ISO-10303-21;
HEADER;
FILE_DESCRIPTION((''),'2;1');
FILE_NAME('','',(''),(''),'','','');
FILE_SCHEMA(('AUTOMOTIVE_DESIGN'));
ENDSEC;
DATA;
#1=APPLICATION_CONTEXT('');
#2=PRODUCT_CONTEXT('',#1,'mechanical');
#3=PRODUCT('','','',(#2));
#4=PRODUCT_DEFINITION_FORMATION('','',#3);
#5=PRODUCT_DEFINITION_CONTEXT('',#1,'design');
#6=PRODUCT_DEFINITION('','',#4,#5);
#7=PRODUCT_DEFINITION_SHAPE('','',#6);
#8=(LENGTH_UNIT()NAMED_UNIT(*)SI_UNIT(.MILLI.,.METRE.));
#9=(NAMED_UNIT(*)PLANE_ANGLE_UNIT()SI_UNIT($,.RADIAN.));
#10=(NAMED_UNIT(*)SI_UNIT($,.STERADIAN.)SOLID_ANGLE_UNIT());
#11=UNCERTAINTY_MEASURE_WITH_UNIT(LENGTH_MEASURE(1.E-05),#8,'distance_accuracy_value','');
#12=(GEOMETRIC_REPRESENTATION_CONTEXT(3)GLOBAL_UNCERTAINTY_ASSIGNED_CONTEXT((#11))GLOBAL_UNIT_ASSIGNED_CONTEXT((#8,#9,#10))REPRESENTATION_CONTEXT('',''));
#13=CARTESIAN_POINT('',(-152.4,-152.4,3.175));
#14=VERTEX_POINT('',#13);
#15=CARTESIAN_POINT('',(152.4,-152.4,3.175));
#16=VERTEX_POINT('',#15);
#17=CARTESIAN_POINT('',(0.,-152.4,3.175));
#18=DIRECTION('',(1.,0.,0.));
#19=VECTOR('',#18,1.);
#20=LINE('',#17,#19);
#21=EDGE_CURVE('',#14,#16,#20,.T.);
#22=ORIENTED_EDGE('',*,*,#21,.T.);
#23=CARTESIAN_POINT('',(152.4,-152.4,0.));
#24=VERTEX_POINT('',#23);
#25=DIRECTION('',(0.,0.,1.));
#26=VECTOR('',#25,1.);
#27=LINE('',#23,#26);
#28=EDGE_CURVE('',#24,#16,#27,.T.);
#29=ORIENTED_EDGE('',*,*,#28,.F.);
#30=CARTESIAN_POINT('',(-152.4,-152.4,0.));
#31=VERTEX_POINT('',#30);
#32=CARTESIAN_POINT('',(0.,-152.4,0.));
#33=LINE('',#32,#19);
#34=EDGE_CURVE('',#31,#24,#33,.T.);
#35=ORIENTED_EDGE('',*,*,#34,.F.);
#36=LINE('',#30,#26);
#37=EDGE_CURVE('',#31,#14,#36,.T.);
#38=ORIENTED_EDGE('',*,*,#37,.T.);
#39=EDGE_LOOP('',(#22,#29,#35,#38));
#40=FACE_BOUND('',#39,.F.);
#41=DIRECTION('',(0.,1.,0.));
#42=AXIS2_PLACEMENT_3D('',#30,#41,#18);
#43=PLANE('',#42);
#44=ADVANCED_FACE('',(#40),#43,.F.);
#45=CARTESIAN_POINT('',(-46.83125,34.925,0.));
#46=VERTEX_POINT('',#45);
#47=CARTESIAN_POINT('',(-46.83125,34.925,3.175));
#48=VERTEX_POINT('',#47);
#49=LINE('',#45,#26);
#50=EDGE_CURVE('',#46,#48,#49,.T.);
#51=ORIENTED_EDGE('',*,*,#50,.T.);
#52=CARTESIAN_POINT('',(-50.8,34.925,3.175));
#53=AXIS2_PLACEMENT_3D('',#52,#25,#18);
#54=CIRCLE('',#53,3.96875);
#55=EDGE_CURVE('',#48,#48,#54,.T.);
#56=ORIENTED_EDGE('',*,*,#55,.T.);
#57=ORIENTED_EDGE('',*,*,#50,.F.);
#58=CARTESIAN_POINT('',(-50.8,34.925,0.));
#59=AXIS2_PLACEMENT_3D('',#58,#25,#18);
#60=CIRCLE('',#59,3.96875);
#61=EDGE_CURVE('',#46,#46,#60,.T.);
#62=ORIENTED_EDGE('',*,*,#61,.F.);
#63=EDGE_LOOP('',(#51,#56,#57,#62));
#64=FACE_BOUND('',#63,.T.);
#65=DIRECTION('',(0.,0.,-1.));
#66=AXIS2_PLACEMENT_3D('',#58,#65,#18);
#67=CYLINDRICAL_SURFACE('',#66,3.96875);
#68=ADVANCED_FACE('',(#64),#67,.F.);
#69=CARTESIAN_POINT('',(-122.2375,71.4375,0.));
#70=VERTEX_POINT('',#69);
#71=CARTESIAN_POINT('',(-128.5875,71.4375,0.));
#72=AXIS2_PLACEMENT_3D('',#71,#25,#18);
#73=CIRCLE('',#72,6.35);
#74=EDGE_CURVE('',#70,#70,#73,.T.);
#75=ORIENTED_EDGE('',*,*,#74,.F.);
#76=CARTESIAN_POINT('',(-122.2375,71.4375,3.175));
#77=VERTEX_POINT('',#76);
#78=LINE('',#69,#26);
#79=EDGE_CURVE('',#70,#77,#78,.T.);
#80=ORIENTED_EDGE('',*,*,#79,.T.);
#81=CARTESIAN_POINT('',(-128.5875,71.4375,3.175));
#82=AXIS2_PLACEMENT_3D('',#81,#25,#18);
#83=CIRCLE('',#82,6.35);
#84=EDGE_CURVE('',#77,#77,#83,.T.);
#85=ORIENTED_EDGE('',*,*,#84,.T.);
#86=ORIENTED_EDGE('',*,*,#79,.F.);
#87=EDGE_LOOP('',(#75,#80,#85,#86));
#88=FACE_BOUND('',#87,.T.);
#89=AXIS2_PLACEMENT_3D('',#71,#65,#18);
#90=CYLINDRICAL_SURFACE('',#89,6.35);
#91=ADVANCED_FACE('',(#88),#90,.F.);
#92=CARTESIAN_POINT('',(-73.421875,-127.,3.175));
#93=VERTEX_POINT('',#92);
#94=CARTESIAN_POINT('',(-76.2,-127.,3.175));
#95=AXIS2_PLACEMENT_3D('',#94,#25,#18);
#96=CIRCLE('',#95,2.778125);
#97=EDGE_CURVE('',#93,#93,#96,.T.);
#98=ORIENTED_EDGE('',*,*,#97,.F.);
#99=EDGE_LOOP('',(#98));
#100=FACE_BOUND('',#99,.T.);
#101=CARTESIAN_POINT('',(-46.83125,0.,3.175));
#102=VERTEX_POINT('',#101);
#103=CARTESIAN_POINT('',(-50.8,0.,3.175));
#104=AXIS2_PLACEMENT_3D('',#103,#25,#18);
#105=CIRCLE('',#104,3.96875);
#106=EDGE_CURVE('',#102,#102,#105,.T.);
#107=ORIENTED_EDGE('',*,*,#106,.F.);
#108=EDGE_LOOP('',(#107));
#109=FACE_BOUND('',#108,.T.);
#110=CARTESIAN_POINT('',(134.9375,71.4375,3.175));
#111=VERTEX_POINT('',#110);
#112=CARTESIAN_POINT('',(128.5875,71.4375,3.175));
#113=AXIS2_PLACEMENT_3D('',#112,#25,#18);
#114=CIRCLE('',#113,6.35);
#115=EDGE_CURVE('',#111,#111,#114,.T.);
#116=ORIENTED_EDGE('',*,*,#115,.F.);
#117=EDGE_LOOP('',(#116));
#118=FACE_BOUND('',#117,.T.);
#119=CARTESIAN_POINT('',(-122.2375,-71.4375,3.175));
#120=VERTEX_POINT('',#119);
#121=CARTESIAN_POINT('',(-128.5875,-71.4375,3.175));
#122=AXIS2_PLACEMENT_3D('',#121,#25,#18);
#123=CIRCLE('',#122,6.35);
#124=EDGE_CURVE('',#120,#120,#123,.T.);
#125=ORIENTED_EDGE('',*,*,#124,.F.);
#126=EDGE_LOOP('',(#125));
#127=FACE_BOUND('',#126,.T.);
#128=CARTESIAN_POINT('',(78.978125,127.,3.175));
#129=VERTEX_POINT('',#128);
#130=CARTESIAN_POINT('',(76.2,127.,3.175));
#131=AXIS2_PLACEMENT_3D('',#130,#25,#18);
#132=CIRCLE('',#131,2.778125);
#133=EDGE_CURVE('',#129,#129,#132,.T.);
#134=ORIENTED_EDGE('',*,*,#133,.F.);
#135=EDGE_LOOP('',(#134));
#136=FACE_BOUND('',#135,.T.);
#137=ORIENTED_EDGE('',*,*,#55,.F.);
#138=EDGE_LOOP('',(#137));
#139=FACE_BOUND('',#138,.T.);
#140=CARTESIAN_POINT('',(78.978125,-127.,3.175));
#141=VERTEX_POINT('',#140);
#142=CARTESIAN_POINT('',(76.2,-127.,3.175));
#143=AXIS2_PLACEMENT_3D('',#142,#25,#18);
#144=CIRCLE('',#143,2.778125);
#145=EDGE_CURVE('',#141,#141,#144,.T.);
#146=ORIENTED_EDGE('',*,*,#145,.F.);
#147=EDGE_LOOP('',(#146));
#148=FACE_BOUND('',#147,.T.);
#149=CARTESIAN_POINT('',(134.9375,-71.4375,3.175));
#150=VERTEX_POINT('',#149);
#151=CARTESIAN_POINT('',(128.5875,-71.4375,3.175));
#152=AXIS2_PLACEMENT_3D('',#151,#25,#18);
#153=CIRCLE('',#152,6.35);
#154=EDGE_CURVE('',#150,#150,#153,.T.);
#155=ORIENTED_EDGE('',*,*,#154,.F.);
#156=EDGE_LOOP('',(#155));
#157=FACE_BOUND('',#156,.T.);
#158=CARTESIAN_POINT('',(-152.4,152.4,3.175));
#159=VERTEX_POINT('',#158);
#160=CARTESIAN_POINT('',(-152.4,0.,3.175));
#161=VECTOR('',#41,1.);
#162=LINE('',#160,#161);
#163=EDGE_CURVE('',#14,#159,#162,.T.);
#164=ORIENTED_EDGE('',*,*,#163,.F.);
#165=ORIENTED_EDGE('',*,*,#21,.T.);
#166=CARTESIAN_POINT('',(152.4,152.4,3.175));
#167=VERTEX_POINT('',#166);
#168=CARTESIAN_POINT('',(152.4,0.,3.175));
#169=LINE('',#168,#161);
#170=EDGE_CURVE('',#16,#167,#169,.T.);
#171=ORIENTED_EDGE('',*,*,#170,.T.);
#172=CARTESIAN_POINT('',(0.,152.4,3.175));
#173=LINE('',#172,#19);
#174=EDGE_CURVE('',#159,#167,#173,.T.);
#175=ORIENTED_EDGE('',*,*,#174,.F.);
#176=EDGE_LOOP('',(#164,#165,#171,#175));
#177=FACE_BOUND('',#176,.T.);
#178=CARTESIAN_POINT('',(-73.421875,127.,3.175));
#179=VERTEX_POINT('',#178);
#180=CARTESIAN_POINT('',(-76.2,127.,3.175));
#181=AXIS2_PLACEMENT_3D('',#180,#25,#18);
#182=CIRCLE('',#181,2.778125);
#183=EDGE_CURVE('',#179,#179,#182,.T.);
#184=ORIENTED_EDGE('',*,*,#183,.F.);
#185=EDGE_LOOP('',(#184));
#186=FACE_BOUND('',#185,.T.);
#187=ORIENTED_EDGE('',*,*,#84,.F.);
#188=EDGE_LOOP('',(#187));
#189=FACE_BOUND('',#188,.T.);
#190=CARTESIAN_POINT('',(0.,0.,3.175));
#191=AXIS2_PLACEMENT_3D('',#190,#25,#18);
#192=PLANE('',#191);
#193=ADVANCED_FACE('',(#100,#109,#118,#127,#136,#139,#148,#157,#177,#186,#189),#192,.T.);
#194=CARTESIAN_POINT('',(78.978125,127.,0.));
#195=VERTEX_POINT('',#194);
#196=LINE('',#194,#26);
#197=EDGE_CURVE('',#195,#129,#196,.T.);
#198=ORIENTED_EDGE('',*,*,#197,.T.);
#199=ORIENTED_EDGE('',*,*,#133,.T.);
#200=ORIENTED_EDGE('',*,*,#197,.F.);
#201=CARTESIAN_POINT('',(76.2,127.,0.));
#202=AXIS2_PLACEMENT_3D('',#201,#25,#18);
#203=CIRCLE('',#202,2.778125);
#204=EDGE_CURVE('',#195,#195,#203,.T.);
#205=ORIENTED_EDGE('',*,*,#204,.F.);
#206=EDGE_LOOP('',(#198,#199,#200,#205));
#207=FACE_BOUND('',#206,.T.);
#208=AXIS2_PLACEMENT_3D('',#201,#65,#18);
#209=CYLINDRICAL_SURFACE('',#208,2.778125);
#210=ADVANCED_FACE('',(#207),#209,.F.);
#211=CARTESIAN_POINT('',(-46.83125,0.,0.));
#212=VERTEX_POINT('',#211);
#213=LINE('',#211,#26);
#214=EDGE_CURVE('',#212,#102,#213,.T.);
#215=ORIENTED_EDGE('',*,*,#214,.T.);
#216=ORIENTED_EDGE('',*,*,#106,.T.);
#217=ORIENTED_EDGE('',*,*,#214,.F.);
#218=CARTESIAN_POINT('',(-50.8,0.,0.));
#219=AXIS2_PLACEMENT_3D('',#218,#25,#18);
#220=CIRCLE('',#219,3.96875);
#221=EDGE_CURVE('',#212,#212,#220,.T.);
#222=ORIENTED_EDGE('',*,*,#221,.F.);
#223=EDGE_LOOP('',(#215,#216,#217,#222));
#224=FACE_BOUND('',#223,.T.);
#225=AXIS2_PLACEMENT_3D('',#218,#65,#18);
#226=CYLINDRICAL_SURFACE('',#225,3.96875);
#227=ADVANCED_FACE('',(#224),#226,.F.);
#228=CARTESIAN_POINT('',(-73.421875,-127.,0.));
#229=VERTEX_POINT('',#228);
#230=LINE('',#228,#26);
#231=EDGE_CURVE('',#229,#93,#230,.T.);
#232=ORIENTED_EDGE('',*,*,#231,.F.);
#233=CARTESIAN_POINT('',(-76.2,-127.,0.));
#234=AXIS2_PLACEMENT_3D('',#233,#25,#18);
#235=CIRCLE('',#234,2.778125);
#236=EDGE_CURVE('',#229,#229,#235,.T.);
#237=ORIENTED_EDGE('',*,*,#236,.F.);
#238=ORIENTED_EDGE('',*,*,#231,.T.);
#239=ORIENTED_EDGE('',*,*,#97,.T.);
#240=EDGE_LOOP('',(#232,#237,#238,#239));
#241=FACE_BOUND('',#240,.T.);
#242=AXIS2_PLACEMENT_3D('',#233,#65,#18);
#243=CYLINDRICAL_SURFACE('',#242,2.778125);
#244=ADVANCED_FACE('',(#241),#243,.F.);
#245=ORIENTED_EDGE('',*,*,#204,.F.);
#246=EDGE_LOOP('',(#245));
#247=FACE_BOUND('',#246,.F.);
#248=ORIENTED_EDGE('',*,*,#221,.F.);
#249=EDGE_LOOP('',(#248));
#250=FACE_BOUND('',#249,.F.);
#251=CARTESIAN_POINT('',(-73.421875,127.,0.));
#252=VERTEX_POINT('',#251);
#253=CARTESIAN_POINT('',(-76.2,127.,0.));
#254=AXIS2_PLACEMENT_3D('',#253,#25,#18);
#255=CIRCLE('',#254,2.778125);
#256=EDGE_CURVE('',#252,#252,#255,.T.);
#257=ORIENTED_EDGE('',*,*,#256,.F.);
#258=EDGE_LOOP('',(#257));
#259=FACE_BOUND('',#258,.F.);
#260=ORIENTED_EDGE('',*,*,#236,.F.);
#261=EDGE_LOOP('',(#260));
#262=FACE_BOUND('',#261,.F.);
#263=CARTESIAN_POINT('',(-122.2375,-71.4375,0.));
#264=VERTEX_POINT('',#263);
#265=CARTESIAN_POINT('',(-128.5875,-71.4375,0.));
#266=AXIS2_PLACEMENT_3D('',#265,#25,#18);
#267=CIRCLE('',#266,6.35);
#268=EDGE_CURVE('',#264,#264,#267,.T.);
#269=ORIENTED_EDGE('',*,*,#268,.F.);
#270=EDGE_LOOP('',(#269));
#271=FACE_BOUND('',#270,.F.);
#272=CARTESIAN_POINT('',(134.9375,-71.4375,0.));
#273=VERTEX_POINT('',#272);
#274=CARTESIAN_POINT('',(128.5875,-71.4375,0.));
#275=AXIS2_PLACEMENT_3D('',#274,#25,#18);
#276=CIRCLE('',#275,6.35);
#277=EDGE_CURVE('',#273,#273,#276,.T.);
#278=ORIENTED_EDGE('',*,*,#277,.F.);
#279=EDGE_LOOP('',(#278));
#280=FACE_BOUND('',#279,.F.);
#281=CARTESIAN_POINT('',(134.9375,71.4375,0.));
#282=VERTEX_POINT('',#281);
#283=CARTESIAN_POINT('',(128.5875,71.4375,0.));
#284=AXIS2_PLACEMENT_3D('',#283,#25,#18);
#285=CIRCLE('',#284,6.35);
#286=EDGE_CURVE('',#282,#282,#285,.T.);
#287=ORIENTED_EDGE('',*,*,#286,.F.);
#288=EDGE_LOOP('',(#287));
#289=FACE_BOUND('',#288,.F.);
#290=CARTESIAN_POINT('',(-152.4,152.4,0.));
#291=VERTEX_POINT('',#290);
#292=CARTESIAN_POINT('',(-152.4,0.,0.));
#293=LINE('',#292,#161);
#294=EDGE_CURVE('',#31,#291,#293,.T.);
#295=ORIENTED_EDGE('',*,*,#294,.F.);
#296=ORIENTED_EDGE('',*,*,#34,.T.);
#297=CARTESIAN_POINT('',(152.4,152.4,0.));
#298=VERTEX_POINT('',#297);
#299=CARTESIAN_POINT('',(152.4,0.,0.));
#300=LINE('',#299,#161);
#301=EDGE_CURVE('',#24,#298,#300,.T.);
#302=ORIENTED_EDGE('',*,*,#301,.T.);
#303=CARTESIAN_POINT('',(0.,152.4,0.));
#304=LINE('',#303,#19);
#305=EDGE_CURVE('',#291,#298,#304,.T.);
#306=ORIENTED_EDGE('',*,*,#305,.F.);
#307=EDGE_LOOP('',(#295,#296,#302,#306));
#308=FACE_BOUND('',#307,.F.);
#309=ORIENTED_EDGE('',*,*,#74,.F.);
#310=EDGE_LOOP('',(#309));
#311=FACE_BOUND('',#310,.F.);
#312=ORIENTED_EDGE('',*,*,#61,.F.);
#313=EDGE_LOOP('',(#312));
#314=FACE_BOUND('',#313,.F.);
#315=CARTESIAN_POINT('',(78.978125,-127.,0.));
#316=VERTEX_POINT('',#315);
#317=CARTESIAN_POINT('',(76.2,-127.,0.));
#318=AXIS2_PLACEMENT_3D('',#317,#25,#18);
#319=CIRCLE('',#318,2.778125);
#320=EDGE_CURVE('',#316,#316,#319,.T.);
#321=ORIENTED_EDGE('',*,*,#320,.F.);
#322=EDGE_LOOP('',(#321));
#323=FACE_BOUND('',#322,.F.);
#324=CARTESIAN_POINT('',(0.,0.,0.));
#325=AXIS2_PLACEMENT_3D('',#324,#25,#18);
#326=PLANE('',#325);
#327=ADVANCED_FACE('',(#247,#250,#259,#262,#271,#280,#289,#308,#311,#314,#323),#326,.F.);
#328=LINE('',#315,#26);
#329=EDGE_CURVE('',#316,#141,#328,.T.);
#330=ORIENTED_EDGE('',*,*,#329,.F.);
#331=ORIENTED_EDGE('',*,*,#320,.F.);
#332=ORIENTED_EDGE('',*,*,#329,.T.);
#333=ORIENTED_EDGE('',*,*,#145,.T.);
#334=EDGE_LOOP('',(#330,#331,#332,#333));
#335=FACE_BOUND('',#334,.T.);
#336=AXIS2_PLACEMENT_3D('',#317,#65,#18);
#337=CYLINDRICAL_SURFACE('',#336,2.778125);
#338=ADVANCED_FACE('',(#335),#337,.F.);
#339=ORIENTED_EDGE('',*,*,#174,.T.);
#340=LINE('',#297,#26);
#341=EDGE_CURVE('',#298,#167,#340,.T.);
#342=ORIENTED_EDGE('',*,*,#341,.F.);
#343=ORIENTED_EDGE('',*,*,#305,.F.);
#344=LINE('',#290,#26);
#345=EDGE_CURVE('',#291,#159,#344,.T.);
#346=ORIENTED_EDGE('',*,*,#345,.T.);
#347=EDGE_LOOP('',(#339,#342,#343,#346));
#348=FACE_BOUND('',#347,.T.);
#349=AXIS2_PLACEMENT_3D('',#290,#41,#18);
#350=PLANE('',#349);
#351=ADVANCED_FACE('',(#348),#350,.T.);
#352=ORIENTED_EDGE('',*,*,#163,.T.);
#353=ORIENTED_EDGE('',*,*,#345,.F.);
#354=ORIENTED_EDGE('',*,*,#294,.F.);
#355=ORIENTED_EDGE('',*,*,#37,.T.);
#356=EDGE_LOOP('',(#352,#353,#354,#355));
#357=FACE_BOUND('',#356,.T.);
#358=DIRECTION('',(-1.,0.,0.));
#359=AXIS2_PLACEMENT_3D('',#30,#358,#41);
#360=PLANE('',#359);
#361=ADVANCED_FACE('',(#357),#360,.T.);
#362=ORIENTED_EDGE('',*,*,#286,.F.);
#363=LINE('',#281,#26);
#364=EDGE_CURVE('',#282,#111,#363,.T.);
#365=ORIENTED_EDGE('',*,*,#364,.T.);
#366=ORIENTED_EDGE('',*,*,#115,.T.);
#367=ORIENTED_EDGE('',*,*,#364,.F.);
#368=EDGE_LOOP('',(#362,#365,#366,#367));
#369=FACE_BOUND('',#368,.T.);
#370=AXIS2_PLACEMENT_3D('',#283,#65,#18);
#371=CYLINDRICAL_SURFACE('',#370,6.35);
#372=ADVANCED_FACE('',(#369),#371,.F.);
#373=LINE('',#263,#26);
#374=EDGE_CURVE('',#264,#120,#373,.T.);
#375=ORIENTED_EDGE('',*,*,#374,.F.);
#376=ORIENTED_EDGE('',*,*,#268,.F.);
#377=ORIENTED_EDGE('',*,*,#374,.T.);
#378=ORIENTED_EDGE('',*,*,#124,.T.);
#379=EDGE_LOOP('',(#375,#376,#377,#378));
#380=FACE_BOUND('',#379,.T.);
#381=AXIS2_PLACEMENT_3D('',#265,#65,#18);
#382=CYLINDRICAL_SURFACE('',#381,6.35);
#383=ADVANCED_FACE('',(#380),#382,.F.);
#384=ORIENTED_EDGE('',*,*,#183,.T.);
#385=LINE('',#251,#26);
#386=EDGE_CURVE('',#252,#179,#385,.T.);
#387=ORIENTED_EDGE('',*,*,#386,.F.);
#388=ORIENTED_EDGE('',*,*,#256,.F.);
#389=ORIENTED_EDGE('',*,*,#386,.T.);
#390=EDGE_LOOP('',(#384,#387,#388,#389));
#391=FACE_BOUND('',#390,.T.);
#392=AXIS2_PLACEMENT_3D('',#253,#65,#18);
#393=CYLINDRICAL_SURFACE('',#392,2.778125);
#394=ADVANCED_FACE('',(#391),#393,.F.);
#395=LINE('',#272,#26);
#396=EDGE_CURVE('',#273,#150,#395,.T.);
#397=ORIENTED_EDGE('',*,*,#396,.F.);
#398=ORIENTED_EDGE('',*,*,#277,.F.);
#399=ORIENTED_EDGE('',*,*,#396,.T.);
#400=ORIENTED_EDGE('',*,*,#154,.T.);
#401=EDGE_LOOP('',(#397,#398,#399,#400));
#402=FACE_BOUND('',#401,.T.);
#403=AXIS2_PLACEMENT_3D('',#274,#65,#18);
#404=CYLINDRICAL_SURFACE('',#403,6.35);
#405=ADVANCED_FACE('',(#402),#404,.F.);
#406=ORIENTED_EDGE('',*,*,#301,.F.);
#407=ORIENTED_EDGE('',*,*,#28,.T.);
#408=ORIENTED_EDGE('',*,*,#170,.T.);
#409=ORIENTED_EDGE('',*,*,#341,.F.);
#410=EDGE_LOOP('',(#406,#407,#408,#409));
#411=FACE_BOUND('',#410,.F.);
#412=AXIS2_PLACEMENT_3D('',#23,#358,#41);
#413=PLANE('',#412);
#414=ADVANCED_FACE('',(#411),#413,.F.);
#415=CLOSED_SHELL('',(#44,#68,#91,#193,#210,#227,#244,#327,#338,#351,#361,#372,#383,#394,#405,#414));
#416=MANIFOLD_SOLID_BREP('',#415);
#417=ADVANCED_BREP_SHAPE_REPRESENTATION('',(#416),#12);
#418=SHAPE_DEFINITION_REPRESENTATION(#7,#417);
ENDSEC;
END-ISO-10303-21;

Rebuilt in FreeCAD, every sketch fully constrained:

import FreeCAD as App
import Part
import Sketcher
from FreeCAD import Vector
Q = App.Units.Quantity


def add_polygon(sketch, points):
    """Adds a closed chain of lines whose ends are joined by coincident constraints."""
    first, n = sketch.GeometryCount, len(points)
    for a, b in zip(points, points[1:] + points[:1]):
        sketch.addGeometry(Part.LineSegment(App.Vector(*a, 0), App.Vector(*b, 0)), False)
    for i in range(n):
        sketch.addConstraint(Sketcher.Constraint("Coincident", first + i, 2, first + (i + 1) % n, 1))

doc = App.newDocument("Part")
body = doc.addObject("PartDesign::Body", "Body")

# Sketch on XY plane
sketch1 = doc.addObject("Sketcher::SketchObject", "Sketch")
body.addObject(sketch1)
sketch1.AttachmentSupport = (doc.XY_Plane, [""])
sketch1.MapMode = "FlatFace"
add_polygon(sketch1, [(-152.4, 152.4), (-152.4, -152.4), (152.4, -152.4), (152.4, 152.4)])  # lines 0-3
sketch1.addGeometry(Part.Circle(Vector(-76.2, -127, 0), Vector(0, 0, 1), 2.778125), False)  # 4
sketch1.addGeometry(Part.Circle(Vector(-128.5875, -71.4375, 0), Vector(0, 0, 1), 6.35), False)  # 5
sketch1.addGeometry(Part.Circle(Vector(76.2, -127, 0), Vector(0, 0, 1), 2.778125), False)  # 6
sketch1.addGeometry(Part.Circle(Vector(128.5875, -71.4375, 0), Vector(0, 0, 1), 6.35), False)  # 7
sketch1.addGeometry(Part.Circle(Vector(-50.8, 0, 0), Vector(0, 0, 1), 3.96875), False)  # 8
sketch1.addGeometry(Part.Circle(Vector(-50.8, 34.925, 0), Vector(0, 0, 1), 3.96875), False)  # 9
sketch1.addGeometry(Part.Circle(Vector(-128.5875, 71.4375, 0), Vector(0, 0, 1), 6.35), False)  # 10
sketch1.addGeometry(Part.Circle(Vector(-76.2, 127, 0), Vector(0, 0, 1), 2.778125), False)  # 11
sketch1.addGeometry(Part.Circle(Vector(128.5875, 71.4375, 0), Vector(0, 0, 1), 6.35), False)  # 12
sketch1.addGeometry(Part.Circle(Vector(76.2, 127, 0), Vector(0, 0, 1), 2.778125), False)  # 13
sketch1.addConstraint([
    Sketcher.Constraint("Vertical", 0),
    Sketcher.Constraint("Horizontal", 1),
    Sketcher.Constraint("Vertical", 2),
    Sketcher.Constraint("Horizontal", 3),
    Sketcher.Constraint("Equal", 4, 6),
    Sketcher.Constraint("Equal", 5, 7),
    Sketcher.Constraint("Equal", 8, 9),
    Sketcher.Constraint("Equal", 7, 10),
    Sketcher.Constraint("Equal", 6, 11),
    Sketcher.Constraint("Equal", 10, 12),
    Sketcher.Constraint("Equal", 11, 13),
    Sketcher.Constraint("Symmetric", 7, 3, 10, 3, -1, 1),
    Sketcher.Constraint("Symmetric", 6, 3, 11, 3, -1, 1),
    Sketcher.Constraint("Symmetric", 5, 3, 12, 3, -1, 1),
    Sketcher.Constraint("Symmetric", 4, 3, 13, 3, -1, 1),
    Sketcher.Constraint("Symmetric", 0, 2, 2, 2, -1, 1),
    Sketcher.Constraint("Symmetric", 4, 3, 6, 3, -2),
    Sketcher.Constraint("Symmetric", 5, 3, 7, 3, -2),
    Sketcher.Constraint("PointOnObject", 8, 3, -1),
    Sketcher.Constraint("Vertical", 8, 3, 9, 3),
    Sketcher.Constraint("Equal", 3, 0),
    Sketcher.Constraint("Diameter", 5, Q("0.5 in")),
    Sketcher.Constraint("DistanceX", 1, 1, 1, 2, Q("12 in")),
    Sketcher.Constraint("Diameter", 4, Q("0.21875 in")),
    Sketcher.Constraint("Diameter", 8, Q("0.3125 in")),
    Sketcher.Constraint("DistanceX", 4, 3, -1, 1, Q("3 in")),
    Sketcher.Constraint("DistanceY", 4, 3, -1, 1, Q("5 in")),
    Sketcher.Constraint("DistanceX", 8, 3, -1, 1, Q("2 in")),
    Sketcher.Constraint("DistanceX", 5, 3, -1, 1, Q("5.0625 in")),
    Sketcher.Constraint("DistanceY", 5, 3, -1, 1, Q("2.8125 in")),
    Sketcher.Constraint("DistanceY", -1, 1, 9, 3, Q("1.375 in")),
])
pad1 = doc.addObject("PartDesign::Pad", "Pad")
body.addObject(pad1)
pad1.Profile = sketch1
pad1.Length = Q("0.125 in")

doc.recompute()
